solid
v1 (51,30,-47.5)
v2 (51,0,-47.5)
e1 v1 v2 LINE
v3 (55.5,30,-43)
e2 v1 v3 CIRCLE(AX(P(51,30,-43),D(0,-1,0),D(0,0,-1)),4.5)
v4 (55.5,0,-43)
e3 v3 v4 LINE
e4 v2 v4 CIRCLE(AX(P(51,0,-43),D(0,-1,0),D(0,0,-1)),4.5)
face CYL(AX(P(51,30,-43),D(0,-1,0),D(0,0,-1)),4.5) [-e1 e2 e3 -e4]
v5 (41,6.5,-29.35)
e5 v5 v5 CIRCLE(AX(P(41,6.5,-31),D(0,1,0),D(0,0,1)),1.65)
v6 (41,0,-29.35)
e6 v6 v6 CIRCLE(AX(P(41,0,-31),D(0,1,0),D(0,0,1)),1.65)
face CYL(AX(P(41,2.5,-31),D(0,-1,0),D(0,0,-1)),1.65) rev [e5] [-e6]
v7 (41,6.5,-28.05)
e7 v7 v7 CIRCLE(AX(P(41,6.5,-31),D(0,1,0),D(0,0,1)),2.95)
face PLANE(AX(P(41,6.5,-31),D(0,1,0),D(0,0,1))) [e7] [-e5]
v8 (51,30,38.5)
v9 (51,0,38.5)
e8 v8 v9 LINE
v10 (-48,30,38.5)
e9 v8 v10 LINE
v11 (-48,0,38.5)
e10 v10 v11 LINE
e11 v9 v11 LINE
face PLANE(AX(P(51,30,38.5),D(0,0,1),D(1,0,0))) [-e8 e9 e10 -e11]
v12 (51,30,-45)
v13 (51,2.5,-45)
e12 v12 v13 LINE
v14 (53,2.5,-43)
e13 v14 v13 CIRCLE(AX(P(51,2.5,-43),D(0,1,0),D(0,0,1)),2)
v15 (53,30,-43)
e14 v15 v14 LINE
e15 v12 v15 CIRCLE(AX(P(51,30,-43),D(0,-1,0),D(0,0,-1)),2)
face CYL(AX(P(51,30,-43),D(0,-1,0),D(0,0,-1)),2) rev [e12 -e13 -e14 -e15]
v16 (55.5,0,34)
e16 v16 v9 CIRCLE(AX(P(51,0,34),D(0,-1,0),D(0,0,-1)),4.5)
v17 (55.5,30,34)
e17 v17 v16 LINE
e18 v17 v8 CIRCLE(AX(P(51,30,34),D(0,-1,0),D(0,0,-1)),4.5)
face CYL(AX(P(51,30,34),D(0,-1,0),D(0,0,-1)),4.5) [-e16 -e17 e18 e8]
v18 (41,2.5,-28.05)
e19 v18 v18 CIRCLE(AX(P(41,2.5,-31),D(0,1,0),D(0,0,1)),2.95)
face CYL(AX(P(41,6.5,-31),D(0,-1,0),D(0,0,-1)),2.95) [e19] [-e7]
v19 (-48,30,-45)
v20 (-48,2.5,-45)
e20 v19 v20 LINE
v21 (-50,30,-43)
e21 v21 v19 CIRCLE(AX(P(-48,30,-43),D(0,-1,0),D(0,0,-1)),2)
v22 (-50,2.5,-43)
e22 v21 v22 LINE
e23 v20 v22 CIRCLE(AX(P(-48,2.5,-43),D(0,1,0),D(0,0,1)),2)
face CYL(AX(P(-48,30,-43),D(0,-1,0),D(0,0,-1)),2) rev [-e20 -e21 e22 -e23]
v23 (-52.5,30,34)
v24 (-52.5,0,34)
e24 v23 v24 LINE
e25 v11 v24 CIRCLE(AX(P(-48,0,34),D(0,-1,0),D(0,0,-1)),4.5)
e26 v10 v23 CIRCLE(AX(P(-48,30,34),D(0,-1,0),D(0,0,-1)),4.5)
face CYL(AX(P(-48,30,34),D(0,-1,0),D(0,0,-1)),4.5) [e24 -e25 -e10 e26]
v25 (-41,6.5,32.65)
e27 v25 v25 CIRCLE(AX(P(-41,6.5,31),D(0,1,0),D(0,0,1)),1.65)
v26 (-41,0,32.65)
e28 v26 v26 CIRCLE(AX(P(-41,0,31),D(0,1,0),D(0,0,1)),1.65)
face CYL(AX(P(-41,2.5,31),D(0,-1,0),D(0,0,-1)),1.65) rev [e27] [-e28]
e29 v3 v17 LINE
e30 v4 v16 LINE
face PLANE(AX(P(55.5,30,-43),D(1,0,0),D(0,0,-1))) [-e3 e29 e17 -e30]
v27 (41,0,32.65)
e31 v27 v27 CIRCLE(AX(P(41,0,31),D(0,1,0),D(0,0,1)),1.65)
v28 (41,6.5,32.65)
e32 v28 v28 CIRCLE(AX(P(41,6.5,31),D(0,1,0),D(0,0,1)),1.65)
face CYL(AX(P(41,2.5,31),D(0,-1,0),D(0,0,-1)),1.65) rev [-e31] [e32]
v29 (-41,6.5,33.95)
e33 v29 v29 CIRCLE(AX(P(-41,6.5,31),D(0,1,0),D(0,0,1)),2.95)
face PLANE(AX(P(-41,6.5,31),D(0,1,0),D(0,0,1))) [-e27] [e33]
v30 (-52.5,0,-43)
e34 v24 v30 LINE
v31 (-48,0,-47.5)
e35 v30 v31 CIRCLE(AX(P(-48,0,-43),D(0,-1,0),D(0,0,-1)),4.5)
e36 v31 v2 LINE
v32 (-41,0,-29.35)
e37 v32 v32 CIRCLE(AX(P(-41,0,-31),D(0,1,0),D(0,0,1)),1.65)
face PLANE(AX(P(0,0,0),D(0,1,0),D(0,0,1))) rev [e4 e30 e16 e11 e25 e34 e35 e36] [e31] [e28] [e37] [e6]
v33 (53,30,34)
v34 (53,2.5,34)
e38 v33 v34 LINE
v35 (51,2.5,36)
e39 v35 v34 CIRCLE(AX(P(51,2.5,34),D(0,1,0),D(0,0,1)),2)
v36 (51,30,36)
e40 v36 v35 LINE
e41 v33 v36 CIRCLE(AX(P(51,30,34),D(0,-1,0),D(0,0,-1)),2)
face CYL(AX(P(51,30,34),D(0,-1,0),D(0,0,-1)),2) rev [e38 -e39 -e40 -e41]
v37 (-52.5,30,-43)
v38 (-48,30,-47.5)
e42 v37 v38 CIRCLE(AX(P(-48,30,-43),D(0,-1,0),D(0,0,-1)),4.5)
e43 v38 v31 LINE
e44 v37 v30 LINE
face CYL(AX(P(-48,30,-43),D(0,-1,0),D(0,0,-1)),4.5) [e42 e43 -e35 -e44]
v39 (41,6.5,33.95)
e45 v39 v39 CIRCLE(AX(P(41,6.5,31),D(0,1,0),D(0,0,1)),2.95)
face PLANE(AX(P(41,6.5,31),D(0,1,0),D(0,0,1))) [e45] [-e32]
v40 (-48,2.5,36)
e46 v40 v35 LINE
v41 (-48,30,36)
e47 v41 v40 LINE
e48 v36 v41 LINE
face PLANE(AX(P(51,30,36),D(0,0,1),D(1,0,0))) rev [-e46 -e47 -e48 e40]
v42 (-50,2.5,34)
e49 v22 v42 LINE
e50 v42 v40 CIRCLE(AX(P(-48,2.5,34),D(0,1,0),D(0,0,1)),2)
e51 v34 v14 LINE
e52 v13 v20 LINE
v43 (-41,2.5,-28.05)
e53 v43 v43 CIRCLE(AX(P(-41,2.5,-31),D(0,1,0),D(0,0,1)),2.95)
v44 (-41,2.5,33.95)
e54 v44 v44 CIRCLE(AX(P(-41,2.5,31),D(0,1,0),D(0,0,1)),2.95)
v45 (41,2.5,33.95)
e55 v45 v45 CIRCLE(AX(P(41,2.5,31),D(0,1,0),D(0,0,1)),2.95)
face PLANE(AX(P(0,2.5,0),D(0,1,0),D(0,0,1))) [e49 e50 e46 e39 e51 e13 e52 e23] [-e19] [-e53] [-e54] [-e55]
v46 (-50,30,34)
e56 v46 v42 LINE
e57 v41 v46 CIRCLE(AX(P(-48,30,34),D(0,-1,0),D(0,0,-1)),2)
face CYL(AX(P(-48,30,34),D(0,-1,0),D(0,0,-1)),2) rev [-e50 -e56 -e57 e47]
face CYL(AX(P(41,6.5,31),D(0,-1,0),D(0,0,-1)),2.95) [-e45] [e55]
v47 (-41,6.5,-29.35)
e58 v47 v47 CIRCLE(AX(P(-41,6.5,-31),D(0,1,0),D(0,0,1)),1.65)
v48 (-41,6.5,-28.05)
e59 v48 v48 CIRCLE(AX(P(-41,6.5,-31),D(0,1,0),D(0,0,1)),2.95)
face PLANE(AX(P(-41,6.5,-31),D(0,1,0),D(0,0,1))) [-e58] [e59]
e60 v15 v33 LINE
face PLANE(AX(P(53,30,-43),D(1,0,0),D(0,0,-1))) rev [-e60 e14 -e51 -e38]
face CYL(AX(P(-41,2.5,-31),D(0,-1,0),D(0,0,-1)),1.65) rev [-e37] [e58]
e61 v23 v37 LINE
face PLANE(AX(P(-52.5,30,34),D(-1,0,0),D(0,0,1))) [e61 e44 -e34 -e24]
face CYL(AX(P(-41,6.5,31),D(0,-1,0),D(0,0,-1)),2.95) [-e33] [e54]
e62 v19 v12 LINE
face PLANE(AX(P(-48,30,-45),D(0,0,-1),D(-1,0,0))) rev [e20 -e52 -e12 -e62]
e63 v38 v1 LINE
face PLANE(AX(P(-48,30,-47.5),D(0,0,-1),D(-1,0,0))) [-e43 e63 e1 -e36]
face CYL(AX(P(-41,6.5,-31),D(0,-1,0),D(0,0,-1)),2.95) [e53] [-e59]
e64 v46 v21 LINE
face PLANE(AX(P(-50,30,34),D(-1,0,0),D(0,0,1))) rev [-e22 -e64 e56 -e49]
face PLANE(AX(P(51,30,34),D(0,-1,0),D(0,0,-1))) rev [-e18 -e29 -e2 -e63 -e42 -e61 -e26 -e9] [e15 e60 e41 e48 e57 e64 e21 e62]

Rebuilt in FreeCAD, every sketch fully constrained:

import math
import FreeCAD as App
import Part
import Sketcher

V = App.Vector


def edges_at(feature, points):
    """Names of the edges that pass closest to the given points."""
    edges = feature.Shape.Edges
    near = lambda p: min(range(len(edges)), key=lambda i: edges[i].distToShape(Part.Vertex(*p))[0])
    return sorted({f"Edge{near(p) + 1}" for p in points})


def add_polygon(sketch, points):
    """Adds a closed chain of lines whose ends are joined by coincident constraints."""
    first, n = sketch.GeometryCount, len(points)
    for a, b in zip(points, points[1:] + points[:1]):
        sketch.addGeometry(Part.LineSegment(App.Vector(*a, 0), App.Vector(*b, 0)), False)
    for i in range(n):
        sketch.addConstraint(Sketcher.Constraint("Coincident", first + i, 2, first + (i + 1) % n, 1))

doc = App.newDocument("Part")
params = doc.addObject("Spreadsheet::Sheet", "Params")
for row, (alias, value) in enumerate([
    ("sketch1_diameter", "3.3 mm"),
    ("sketch1_width", "103 mm"),
    ("sketch1_height", "81 mm"),
    ("pad1_length", "2.5 mm"),
    ("fillet_radius", "2 mm"),
    ("sketch2_radius", "2 mm"),
    ("sketch2_radius2", "4.5 mm"),
    ("sketch2_width", "99 mm"),
    ("sketch2_height", "77 mm"),
    ("pad2_length", "30 mm"),
    ("sketch3_diameter", "5.9 mm"),
    ("sketch3_diameter2", "3.3 mm"),
    ("pad3_length", "4 mm"),
], start=1):
    params.set(f"A{row}", alias)
    params.set(f"B{row}", "=" + value)
    params.setAlias(f"B{row}", alias)

body = doc.addObject("PartDesign::Body", "Body")

# Sketch on XZ plane
sketch1 = doc.addObject("Sketcher::SketchObject", "Sketch")
body.addObject(sketch1)
sketch1.AttachmentSupport = (doc.XZ_Plane, [""])
sketch1.MapMode = "FlatFace"
add_polygon(sketch1, [(-50, -45), (-50, 36), (53, 36), (53, -45)])  # lines 0-3
sketch1.addGeometry(Part.Circle(V(-41, 31, 0), V(0, 0, 1), 1.6), False)  # 4
sketch1.addGeometry(Part.Circle(V(41, 31, 0), V(0, 0, 1), 1.6), False)  # 5
sketch1.addGeometry(Part.Circle(V(-41, -31, 0), V(0, 0, 1), 1.6), False)  # 6
sketch1.addGeometry(Part.Circle(V(41, -31, 0), V(0, 0, 1), 1.6), False)  # 7
sketch1.addConstraint(Sketcher.Constraint("Vertical", 0))
sketch1.addConstraint(Sketcher.Constraint("Horizontal", 1))
sketch1.addConstraint(Sketcher.Constraint("Vertical", 2))
sketch1.addConstraint(Sketcher.Constraint("Horizontal", 3))
sketch1.addConstraint(Sketcher.Constraint("Equal", 4, 5))
sketch1.addConstraint(Sketcher.Constraint("Equal", 5, 6))
sketch1.addConstraint(Sketcher.Constraint("Equal", 6, 7))
sketch1.addConstraint(Sketcher.Constraint("Symmetric", 5, 3, 6, 3, -1, 1))
sketch1.addConstraint(Sketcher.Constraint("Symmetric", 4, 3, 7, 3, -1, 1))
sketch1.addConstraint(Sketcher.Constraint("Symmetric", 4, 3, 5, 3, -2))
sketch1.addConstraint(Sketcher.Constraint("Diameter", 4, 3.3))
sketch1.addConstraint(Sketcher.Constraint("DistanceX", 1, 1, 1, 2, 103.0))
sketch1.addConstraint(Sketcher.Constraint("DistanceY", 0, 1, 0, 2, 81.0))
sketch1.addConstraint(Sketcher.Constraint("DistanceX", 4, 3, -1, 1, 41.0))
sketch1.addConstraint(Sketcher.Constraint("DistanceY", -1, 1, 4, 3, 31.0))
sketch1.addConstraint(Sketcher.Constraint("DistanceX", 0, 2, -1, 1, 50.0))
sketch1.addConstraint(Sketcher.Constraint("DistanceY", -1, 1, 0, 2, 36.0))
sketch1.setExpression("Constraints[14]", "Params.sketch1_diameter")
sketch1.setExpression("Constraints[15]", "Params.sketch1_width")
sketch1.setExpression("Constraints[16]", "Params.sketch1_height")
pad1 = doc.addObject("PartDesign::Pad", "Pad")
body.addObject(pad1)
pad1.Profile = sketch1
pad1.setExpression("Length", "Params.pad1_length")
pad1.Reversed = True
doc.recompute()

fillet = doc.addObject("PartDesign::Fillet", "Fillet")
body.addObject(fillet)
fillet.Base = (pad1, edges_at(pad1, [
    (-50, 1.25, -45),
    (53, 1.25, -45),
    (53, 1.25, 36),
    (-50, 1.25, 36),
]))
fillet.setExpression("Radius", "Params.fillet_radius")

# Sketch on XZ plane
sketch2 = doc.addObject("Sketcher::SketchObject", "Sketch001")
body.addObject(sketch2)
sketch2.AttachmentSupport = (doc.XZ_Plane, [""])
sketch2.MapMode = "FlatFace"
sketch2.AttachmentOffset = App.Placement(V(0, 0, -30), App.Rotation())
sketch2.addGeometry(Part.LineSegment(V(51, 38.5, 0), V(-48, 38.5, 0)), False)
sketch2.addGeometry(Part.ArcOfCircle(Part.Circle(V(-48, 34, 0), V(0, 0, 1), 4.5), math.radians(90), math.radians(180)), False)
sketch2.addGeometry(Part.LineSegment(V(-52.5, 34, 0), V(-52.5, -43, 0)), False)
sketch2.addGeometry(Part.ArcOfCircle(Part.Circle(V(-48, -43, 0), V(0, 0, 1), 4.5), math.radians(-180), math.radians(-90)), False)
sketch2.addGeometry(Part.LineSegment(V(-48, -47.5, 0), V(51, -47.5, 0)), False)
sketch2.addGeometry(Part.ArcOfCircle(Part.Circle(V(51, -43, 0), V(0, 0, 1), 4.5), math.radians(-90), math.radians(0)), False)
sketch2.addGeometry(Part.LineSegment(V(55.5, -43, 0), V(55.5, 34, 0)), False)
sketch2.addGeometry(Part.ArcOfCircle(Part.Circle(V(51, 34, 0), V(0, 0, 1), 4.5), math.radians(0), math.radians(90)), False)
sketch2.addGeometry(Part.LineSegment(V(-48, 36, 0), V(51, 36, 0)), False)
sketch2.addGeometry(Part.ArcOfCircle(Part.Circle(V(51, 34, 0), V(0, 0, 1), 2), math.radians(0), math.radians(90)), False)
sketch2.addGeometry(Part.LineSegment(V(53, 34, 0), V(53, -43, 0)), False)
sketch2.addGeometry(Part.ArcOfCircle(Part.Circle(V(51, -43, 0), V(0, 0, 1), 2), math.radians(-90), math.radians(0)), False)
sketch2.addGeometry(Part.LineSegment(V(51, -45, 0), V(-48, -45, 0)), False)
sketch2.addGeometry(Part.ArcOfCircle(Part.Circle(V(-48, -43, 0), V(0, 0, 1), 2), math.radians(-180), math.radians(-90)), False)
sketch2.addGeometry(Part.LineSegment(V(-50, -43, 0), V(-50, 34, 0)), False)
sketch2.addGeometry(Part.ArcOfCircle(Part.Circle(V(-48, 34, 0), V(0, 0, 1), 2), math.radians(90), math.radians(180)), False)
sketch2.addConstraint(Sketcher.Constraint("Tangent", 0, 2, 1, 1))
sketch2.addConstraint(Sketcher.Constraint("Tangent", 1, 2, 2, 1))
sketch2.addConstraint(Sketcher.Constraint("Tangent", 2, 2, 3, 1))
sketch2.addConstraint(Sketcher.Constraint("Tangent", 3, 2, 4, 1))
sketch2.addConstraint(Sketcher.Constraint("Tangent", 4, 2, 5, 1))
sketch2.addConstraint(Sketcher.Constraint("Tangent", 5, 2, 6, 1))
sketch2.addConstraint(Sketcher.Constraint("Tangent", 6, 2, 7, 1))
sketch2.addConstraint(Sketcher.Constraint("Tangent", 7, 2, 0, 1))
sketch2.addConstraint(Sketcher.Constraint("Tangent", 8, 2, 9, 2))
sketch2.addConstraint(Sketcher.Constraint("Tangent", 9, 1, 10, 1))
sketch2.addConstraint(Sketcher.Constraint("Tangent", 10, 2, 11, 2))
sketch2.addConstraint(Sketcher.Constraint("Tangent", 11, 1, 12, 1))
sketch2.addConstraint(Sketcher.Constraint("Tangent", 12, 2, 13, 2))
sketch2.addConstraint(Sketcher.Constraint("Tangent", 13, 1, 14, 1))
sketch2.addConstraint(Sketcher.Constraint("Tangent", 14, 2, 15, 2))
sketch2.addConstraint(Sketcher.Constraint("Tangent", 15, 1, 8, 1))
sketch2.addConstraint(Sketcher.Constraint("Horizontal", 0))
sketch2.addConstraint(Sketcher.Constraint("Vertical", 2))
sketch2.addConstraint(Sketcher.Constraint("Horizontal", 4))
sketch2.addConstraint(Sketcher.Constraint("Vertical", 6))
sketch2.addConstraint(Sketcher.Constraint("Horizontal", 8))
sketch2.addConstraint(Sketcher.Constraint("Vertical", 10))
sketch2.addConstraint(Sketcher.Constraint("Horizontal", 12))
sketch2.addConstraint(Sketcher.Constraint("Vertical", 14))
sketch2.addConstraint(Sketcher.Constraint("Coincident", 9, 3, 7, 3))
sketch2.addConstraint(Sketcher.Constraint("Coincident", 11, 3, 5, 3))
sketch2.addConstraint(Sketcher.Constraint("Coincident", 13, 3, 3, 3))
sketch2.addConstraint(Sketcher.Constraint("Equal", 1, 3))
sketch2.addConstraint(Sketcher.Constraint("Equal", 3, 5))
sketch2.addConstraint(Sketcher.Constraint("Equal", 5, 7))
sketch2.addConstraint(Sketcher.Constraint("Equal", 13, 15))
sketch2.addConstraint(Sketcher.Constraint("Radius", 9, 2.0))
sketch2.addConstraint(Sketcher.Constraint("Radius", 1, 4.5))
sketch2.addConstraint(Sketcher.Constraint("DistanceX", 0, 2, 0, 1, 99.0))
sketch2.addConstraint(Sketcher.Constraint("DistanceY", 2, 2, 2, 1, 77.0))
sketch2.addConstraint(Sketcher.Constraint("DistanceX", 1, 3, -1, 1, 48.0))
sketch2.addConstraint(Sketcher.Constraint("DistanceY", -1, 1, 1, 3, 34.0))
sketch2.setExpression("Constraints[31]", "Params.sketch2_radius")
sketch2.setExpression("Constraints[32]", "Params.sketch2_radius2")
sketch2.setExpression("Constraints[33]", "Params.sketch2_width")
sketch2.setExpression("Constraints[34]", "Params.sketch2_height")
pad2 = doc.addObject("PartDesign::Pad", "Pad001")
body.addObject(pad2)
pad2.Profile = sketch2
pad2.setExpression("Length", "Params.pad2_length")

# Sketch on XZ plane
sketch3 = doc.addObject("Sketcher::SketchObject", "Sketch002")
body.addObject(sketch3)
sketch3.AttachmentSupport = (doc.XZ_Plane, [""])
sketch3.MapMode = "FlatFace"
sketch3.AttachmentOffset = App.Placement(V(0, 0, -2.5), App.Rotation())
sketch3.addGeometry(Part.Circle(V(-41, 31, 0), V(0, 0, 1), 3), False)
sketch3.addGeometry(Part.Circle(V(-41, 31, 0), V(0, 0, 1), 1.6), False)
sketch3.addGeometry(Part.Circle(V(41, 31, 0), V(0, 0, 1), 3), False)
sketch3.addGeometry(Part.Circle(V(41, 31, 0), V(0, 0, 1), 1.6), False)
sketch3.addGeometry(Part.Circle(V(41, -31, 0), V(0, 0, 1), 3), False)
sketch3.addGeometry(Part.Circle(V(41, -31, 0), V(0, 0, 1), 1.6), False)
sketch3.addGeometry(Part.Circle(V(-41, -31, 0), V(0, 0, 1), 3), False)
sketch3.addGeometry(Part.Circle(V(-41, -31, 0), V(0, 0, 1), 1.6), False)
sketch3.addConstraint(Sketcher.Constraint("Coincident", 1, 3, 0, 3))
sketch3.addConstraint(Sketcher.Constraint("Coincident", 3, 3, 2, 3))
sketch3.addConstraint(Sketcher.Constraint("Coincident", 5, 3, 4, 3))
sketch3.addConstraint(Sketcher.Constraint("Coincident", 7, 3, 6, 3))
sketch3.addConstraint(Sketcher.Constraint("Equal", 0, 2))
sketch3.addConstraint(Sketcher.Constraint("Equal", 1, 3))
sketch3.addConstraint(Sketcher.Constraint("Equal", 2, 4))
sketch3.addConstraint(Sketcher.Constraint("Equal", 3, 5))
sketch3.addConstraint(Sketcher.Constraint("Equal", 4, 6))
sketch3.addConstraint(Sketcher.Constraint("Equal", 5, 7))
sketch3.addConstraint(Sketcher.Constraint("Symmetric", 0, 3, 4, 3, -1, 1))
sketch3.addConstraint(Sketcher.Constraint("Symmetric", 2, 3, 6, 3, -1, 1))
sketch3.addConstraint(Sketcher.Constraint("Symmetric", 0, 3, 2, 3, -2))
sketch3.addConstraint(Sketcher.Constraint("Diameter", 0, 5.9))
sketch3.addConstraint(Sketcher.Constraint("Diameter", 1, 3.3))
sketch3.addConstraint(Sketcher.Constraint("DistanceX", 0, 3, -1, 1, 41.0))
sketch3.addConstraint(Sketcher.Constraint("DistanceY", -1, 1, 0, 3, 31.0))
sketch3.setExpression("Constraints[13]", "Params.sketch3_diameter")
sketch3.setExpression("Constraints[14]", "Params.sketch3_diameter2")
pad3 = doc.addObject("PartDesign::Pad", "Pad002")
body.addObject(pad3)
pad3.Profile = sketch3
pad3.setExpression("Length", "Params.pad3_length")
pad3.Reversed = True

doc.recompute()
